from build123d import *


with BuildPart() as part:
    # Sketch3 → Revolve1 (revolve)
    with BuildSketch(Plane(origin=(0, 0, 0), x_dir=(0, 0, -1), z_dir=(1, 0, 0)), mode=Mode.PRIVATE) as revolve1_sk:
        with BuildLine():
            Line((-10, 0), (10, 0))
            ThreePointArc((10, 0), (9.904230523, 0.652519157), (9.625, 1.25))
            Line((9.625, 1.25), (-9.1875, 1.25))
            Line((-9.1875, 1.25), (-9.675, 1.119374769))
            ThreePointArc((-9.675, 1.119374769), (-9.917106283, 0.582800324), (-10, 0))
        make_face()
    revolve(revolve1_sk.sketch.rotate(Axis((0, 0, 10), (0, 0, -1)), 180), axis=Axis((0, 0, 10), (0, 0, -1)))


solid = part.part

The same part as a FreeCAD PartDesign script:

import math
import FreeCAD as App
import Part
import Sketcher
Q = App.Units.Quantity

doc = App.newDocument("Part")
params = doc.addObject("Spreadsheet::Sheet", "Params")
for row, (alias, value) in enumerate([
    ("sketch1_height", "20 mm"),
    ("revolution_angle", "360 deg"),
], start=1):
    params.set(f"A{row}", alias)
    params.set(f"B{row}", "=" + value)
    params.setAlias(f"B{row}", alias)

body = doc.addObject("PartDesign::Body", "Body")

# Sketch on YZ plane
sketch1 = doc.addObject("Sketcher::SketchObject", "Sketch")
body.addObject(sketch1)
sketch1.AttachmentSupport = (doc.YZ_Plane, [""])
sketch1.MapMode = "FlatFace"
sketch1.addGeometry([
    Part.LineSegment(App.Vector(0, 10, 0), App.Vector(0, -10, 0)),  # 0
    Part.ArcOfCircle(Part.Circle(App.Vector(0, -7.7, 0), App.Vector(0, 0, 1), 2.3), math.radians(-90), math.radians(-57)),  # 1
    Part.LineSegment(App.Vector(1.2, -9.6, 0), App.Vector(1.2, 9.2, 0)),  # 2
    Part.LineSegment(App.Vector(1.2, 9.2, 0), App.Vector(1.1, 9.7, 0)),  # 3
    Part.ArcOfCircle(Part.Circle(App.Vector(0, 7.9, 0), App.Vector(0, 0, 1), 2.1), math.radians(58), math.radians(90)),  # 4
], False)
sketch1.addConstraint([
    Sketcher.Constraint("Coincident", 0, 2, 1, 1),
    Sketcher.Constraint("Coincident", 1, 2, 2, 1),
    Sketcher.Constraint("Coincident", 2, 2, 3, 1),
    Sketcher.Constraint("Coincident", 3, 2, 4, 1),
    Sketcher.Constraint("Coincident", 4, 2, 0, 1),
    Sketcher.Constraint("Vertical", 0),
    Sketcher.Constraint("Vertical", 2),
    Sketcher.Constraint("Symmetric", 0, 2, 4, 2, -1, 1),
    Sketcher.Constraint("PointOnObject", 1, 3, -2),
    Sketcher.Constraint("PointOnObject", 4, 3, -2),
    Sketcher.Constraint("DistanceY", 0, 2, 0, 1, 20.0),
    Sketcher.Constraint("Angle", 3, Q("105 deg")),
    Sketcher.Constraint("DistanceY", 1, 2, 3, 2, 19.3),
    Sketcher.Constraint("DistanceX", -1, 1, 1, 2, 1.25),
    Sketcher.Constraint("DistanceY", 2, 1, 2, 2, 18.8125),
    Sketcher.Constraint("DistanceY", 1, 2, -1, 1, 9.625),
])
sketch1.setExpression("Constraints[10]", "Params.sketch1_height")
revolution = doc.addObject("PartDesign::Revolution", "Revolution")
body.addObject(revolution)
revolution.Profile = sketch1
revolution.ReferenceAxis = (sketch1, ["V_Axis"])
revolution.setExpression("Angle", "Params.revolution_angle")

doc.recompute()
